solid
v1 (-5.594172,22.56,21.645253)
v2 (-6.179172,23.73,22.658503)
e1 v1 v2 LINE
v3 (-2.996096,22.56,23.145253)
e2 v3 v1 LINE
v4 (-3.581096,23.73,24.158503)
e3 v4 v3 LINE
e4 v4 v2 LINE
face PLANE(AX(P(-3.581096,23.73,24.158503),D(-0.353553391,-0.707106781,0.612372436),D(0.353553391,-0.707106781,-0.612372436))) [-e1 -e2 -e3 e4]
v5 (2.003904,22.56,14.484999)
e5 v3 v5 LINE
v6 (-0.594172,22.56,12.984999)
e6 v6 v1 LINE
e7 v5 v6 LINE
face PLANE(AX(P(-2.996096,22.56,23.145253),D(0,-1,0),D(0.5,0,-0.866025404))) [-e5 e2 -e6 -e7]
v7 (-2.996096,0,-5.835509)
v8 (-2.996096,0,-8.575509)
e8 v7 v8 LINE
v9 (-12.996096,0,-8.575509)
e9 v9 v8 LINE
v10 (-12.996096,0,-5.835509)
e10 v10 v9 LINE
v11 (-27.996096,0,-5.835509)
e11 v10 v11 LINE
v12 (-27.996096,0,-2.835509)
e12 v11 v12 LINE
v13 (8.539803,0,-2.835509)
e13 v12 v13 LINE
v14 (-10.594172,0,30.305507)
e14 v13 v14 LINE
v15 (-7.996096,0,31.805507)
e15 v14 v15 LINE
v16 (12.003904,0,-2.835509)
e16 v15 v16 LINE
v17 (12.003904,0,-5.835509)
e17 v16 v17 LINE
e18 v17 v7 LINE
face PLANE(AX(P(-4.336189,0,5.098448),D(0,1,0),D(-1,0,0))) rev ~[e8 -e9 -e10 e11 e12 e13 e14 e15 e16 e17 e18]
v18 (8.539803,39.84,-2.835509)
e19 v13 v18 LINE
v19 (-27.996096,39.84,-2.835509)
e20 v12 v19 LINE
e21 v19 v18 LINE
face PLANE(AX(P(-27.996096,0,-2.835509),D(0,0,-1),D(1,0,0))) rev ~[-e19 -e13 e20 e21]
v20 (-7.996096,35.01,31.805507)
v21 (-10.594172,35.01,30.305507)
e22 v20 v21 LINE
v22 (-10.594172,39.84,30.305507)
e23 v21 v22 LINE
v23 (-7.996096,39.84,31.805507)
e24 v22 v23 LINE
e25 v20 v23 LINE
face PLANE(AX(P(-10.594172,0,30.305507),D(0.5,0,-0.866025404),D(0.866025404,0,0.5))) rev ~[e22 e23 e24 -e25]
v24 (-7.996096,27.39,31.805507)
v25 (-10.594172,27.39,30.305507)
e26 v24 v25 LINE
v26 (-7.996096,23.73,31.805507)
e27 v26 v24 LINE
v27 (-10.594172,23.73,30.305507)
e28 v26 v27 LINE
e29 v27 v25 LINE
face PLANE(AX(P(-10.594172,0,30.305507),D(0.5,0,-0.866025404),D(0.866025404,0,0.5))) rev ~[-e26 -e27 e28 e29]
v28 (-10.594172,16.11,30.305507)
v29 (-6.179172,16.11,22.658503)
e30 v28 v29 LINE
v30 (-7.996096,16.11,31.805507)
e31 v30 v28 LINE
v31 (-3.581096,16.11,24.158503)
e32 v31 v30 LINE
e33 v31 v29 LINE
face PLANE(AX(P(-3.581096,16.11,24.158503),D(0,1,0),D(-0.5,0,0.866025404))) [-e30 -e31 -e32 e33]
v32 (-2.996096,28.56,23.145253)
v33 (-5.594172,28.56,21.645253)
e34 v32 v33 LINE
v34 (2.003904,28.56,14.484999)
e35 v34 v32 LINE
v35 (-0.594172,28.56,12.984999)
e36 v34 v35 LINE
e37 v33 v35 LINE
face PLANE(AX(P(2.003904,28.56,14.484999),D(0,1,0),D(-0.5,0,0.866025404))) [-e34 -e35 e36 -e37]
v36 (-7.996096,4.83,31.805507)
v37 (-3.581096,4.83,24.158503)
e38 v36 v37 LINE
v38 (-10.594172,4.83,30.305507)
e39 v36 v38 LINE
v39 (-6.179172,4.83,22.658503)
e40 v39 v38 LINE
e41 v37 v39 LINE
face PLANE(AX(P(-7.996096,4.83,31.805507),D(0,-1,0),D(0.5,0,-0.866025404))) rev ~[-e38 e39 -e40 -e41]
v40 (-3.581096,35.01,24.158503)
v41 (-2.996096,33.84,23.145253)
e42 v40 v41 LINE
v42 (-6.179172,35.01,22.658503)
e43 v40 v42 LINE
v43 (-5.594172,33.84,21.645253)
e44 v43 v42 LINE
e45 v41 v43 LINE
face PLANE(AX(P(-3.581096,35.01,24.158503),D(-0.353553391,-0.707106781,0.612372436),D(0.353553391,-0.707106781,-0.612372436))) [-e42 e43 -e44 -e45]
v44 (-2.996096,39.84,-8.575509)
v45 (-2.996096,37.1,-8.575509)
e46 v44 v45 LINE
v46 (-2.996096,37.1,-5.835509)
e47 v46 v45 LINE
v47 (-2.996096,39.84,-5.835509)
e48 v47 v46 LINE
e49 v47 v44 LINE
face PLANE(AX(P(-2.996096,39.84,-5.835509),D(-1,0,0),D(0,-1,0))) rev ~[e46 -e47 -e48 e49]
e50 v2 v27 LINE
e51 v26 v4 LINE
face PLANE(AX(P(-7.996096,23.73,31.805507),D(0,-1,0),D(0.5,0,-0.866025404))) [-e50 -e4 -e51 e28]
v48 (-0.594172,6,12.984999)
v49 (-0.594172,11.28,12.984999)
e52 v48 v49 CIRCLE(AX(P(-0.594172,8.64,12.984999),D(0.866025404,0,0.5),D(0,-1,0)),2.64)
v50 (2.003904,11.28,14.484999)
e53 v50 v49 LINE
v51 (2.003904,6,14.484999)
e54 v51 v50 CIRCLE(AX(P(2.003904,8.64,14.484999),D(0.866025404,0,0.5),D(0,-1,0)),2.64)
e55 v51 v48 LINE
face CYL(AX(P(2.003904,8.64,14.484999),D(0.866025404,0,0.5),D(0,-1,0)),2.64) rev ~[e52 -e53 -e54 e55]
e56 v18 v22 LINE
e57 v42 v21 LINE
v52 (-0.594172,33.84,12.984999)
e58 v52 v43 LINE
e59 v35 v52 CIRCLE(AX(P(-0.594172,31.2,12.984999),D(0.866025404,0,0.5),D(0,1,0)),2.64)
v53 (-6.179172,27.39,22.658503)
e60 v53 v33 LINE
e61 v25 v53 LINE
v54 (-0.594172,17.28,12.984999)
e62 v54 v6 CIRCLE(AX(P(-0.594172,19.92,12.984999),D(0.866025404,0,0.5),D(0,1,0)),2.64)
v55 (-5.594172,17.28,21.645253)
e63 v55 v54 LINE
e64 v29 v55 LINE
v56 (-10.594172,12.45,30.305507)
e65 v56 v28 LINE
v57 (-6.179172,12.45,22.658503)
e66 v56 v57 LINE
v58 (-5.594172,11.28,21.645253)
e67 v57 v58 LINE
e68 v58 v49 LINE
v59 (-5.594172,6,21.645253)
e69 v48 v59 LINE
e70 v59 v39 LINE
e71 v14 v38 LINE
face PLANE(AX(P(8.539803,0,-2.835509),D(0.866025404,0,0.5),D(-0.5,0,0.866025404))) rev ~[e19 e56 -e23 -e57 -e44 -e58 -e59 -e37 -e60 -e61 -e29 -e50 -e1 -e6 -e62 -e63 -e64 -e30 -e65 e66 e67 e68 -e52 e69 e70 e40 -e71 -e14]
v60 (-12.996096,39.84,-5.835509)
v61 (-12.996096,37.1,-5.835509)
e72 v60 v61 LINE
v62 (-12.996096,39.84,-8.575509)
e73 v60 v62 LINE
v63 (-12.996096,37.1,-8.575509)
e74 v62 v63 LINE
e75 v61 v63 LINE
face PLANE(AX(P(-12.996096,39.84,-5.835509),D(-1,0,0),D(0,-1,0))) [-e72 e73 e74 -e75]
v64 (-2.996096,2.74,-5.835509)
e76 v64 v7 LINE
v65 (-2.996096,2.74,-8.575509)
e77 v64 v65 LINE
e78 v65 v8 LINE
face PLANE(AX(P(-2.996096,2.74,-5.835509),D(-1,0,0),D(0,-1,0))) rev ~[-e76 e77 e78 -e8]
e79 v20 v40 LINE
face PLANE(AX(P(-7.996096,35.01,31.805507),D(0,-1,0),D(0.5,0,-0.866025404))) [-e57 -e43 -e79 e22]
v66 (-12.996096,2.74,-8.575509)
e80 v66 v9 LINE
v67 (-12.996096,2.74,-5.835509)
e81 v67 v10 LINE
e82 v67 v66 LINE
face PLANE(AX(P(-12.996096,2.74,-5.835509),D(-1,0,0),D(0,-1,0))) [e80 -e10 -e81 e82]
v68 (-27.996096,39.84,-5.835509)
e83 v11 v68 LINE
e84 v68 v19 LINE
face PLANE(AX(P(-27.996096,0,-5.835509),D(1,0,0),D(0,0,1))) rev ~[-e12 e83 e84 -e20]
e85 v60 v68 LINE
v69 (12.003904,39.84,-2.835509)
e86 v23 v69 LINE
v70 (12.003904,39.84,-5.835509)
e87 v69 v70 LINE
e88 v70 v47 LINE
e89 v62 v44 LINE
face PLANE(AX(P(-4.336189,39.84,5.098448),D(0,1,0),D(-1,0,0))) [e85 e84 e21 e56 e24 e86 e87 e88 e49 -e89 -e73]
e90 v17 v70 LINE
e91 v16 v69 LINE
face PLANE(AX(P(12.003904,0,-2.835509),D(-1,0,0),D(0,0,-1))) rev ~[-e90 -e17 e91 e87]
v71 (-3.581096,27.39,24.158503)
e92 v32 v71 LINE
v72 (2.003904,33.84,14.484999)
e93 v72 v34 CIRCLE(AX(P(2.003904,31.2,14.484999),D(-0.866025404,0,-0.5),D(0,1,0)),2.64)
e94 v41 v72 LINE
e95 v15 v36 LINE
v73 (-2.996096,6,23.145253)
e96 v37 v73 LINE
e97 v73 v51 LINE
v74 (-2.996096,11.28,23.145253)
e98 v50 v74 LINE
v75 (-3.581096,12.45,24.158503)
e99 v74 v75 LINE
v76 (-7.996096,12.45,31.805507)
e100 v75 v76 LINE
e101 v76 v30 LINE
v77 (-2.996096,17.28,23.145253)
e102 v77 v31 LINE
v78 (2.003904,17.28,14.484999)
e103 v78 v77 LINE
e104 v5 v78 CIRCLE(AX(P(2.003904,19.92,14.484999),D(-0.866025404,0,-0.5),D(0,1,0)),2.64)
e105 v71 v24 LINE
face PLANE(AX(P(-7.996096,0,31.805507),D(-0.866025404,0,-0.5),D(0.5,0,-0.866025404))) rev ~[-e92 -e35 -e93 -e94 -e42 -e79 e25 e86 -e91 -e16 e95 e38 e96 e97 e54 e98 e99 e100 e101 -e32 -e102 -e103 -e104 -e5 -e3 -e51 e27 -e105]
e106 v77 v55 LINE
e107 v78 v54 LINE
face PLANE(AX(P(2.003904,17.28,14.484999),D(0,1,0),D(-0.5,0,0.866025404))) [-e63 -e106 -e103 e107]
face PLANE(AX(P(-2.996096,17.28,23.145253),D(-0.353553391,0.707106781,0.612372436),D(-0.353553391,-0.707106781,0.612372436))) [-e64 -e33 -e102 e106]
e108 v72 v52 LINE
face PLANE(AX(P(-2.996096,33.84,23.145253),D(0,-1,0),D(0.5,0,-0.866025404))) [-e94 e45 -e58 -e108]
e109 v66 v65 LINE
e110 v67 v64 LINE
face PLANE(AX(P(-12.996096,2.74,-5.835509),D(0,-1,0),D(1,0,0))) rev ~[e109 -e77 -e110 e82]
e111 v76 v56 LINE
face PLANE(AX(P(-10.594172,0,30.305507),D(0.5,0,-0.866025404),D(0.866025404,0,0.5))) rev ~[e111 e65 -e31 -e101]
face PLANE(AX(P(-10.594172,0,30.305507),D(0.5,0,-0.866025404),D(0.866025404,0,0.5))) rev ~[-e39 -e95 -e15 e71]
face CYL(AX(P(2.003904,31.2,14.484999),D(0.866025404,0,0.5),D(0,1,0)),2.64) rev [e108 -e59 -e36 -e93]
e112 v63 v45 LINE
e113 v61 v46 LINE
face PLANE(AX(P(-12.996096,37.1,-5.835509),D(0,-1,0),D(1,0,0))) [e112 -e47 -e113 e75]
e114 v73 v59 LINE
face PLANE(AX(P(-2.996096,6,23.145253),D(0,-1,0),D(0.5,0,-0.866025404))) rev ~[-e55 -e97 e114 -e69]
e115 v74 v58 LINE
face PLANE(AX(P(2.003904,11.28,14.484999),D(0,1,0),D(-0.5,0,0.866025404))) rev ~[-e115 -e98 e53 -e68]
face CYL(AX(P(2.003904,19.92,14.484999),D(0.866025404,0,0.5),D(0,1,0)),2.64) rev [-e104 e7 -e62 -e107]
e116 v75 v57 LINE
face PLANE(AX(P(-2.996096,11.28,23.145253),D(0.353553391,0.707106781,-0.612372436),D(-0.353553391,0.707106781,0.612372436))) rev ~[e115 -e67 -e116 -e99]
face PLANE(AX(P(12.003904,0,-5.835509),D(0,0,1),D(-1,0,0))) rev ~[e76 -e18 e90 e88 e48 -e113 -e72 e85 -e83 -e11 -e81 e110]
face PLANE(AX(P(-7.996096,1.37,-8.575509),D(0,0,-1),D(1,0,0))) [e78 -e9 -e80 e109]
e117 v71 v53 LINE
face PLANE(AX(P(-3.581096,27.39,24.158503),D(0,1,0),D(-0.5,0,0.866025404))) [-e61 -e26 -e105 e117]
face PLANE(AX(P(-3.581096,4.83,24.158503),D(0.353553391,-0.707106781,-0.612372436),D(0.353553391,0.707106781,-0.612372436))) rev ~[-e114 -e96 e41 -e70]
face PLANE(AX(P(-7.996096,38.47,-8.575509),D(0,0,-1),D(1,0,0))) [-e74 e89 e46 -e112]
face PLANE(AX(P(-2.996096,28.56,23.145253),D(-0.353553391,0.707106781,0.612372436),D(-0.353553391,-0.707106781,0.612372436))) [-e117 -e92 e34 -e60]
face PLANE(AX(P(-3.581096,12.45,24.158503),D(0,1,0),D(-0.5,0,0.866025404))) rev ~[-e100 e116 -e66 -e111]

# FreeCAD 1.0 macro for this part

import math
import FreeCAD as App
import Part
import Sketcher
Q = App.Units.Quantity


def add_polygon(sketch, points):
    """Adds a closed chain of lines whose ends are joined by coincident constraints."""
    first, n = sketch.GeometryCount, len(points)
    for a, b in zip(points, points[1:] + points[:1]):
        sketch.addGeometry(Part.LineSegment(App.Vector(*a, 0), App.Vector(*b, 0)), False)
    for i in range(n):
        sketch.addConstraint(Sketcher.Constraint("Coincident", first + i, 2, first + (i + 1) % n, 1))

doc = App.newDocument("Part")
params = doc.addObject("Spreadsheet::Sheet", "Params")
for row, (alias, value) in enumerate([
    ("sketch1_width", "40 mm"),
    ("sketch1_height", "3 mm"),
    ("sketch1_length", "3 mm"),
    ("sketch1_length2", "40 mm"),
    ("pad1_length", "39.84 mm"),
    ("sketch2_height", "10 mm"),
    ("sketch2_radius", "2.64 mm"),
    ("sketch2_width", "7.62 mm"),
    ("sketch3_height", "10 mm"),
    ("sketch3_radius", "2.64 mm"),
    ("sketch3_width", "7.62 mm"),
    ("sketch4_height", "10 mm"),
    ("sketch4_radius", "2.64 mm"),
    ("sketch4_width", "7.62 mm"),
    ("sketch5_width", "10 mm"),
    ("sketch5_height", "2.74 mm"),
    ("pad2_length", "2.74 mm"),
], start=1):
    params.set(f"A{row}", alias)
    params.set(f"B{row}", "=" + value)
    params.setAlias(f"B{row}", alias)

body = doc.addObject("PartDesign::Body", "Body")

sketch1 = doc.addObject("Sketcher::SketchObject", "Sketch")
body.addObject(sketch1)
sketch1.AttachmentSupport = (doc.XZ_Plane, [""])
sketch1.MapMode = "FlatFace"
add_polygon(sketch1, [(12.003904, -2.835509), (12.003904, -5.835509), (-27.996096, -5.835509), (-27.996096, -2.835509), (8.539803, -2.835509), (-10.594172, 30.305507), (-7.996096, 31.805507)])
sketch1.addConstraint([
    Sketcher.Constraint("Vertical", 0),
    Sketcher.Constraint("Horizontal", 1),
    Sketcher.Constraint("Vertical", 2),
    Sketcher.Constraint("Horizontal", 3),
    Sketcher.Constraint("Perpendicular", 4, 5),
    Sketcher.Constraint("Perpendicular", 5, 6),
    Sketcher.Constraint("Horizontal", 3, 2, 6, 2),
    Sketcher.Constraint("DistanceX", 1, 2, 1, 1, 40.0),
    Sketcher.Constraint("DistanceY", 0, 2, 0, 1, 3.0),
    Sketcher.Constraint("Angle", 4, Q("120 deg")),
    Sketcher.Constraint("Distance", 5, 3.0),
    Sketcher.Constraint("Distance", 6, 40.0),
    Sketcher.Constraint("DistanceY", 0, 2, -1, 1, 5.835509),
    Sketcher.Constraint("DistanceX", 4, 2, -1, 1, 10.594172),
])
sketch1.setExpression("Constraints[14]", "Params.sketch1_width")
sketch1.setExpression("Constraints[15]", "Params.sketch1_height")
sketch1.setExpression("Constraints[17]", "Params.sketch1_length")
sketch1.setExpression("Constraints[18]", "Params.sketch1_length2")
pad1 = doc.addObject("PartDesign::Pad", "Pad")
body.addObject(pad1)
pad1.Profile = sketch1
pad1.setExpression("Length", "Params.pad1_length")
pad1.Reversed = True

sketch2 = doc.addObject("Sketcher::SketchObject", "Sketch001")
body.addObject(sketch2)
sketch2.Placement = App.Placement(App.Vector(7.775117, 0, 4.488966), App.Rotation(App.Vector(0, 1, 0), App.Vector(-0.5, 0, 0.866025404), App.Vector(0.866025404, 0, 0.5), "ZXY"))
sketch2.addGeometry([
    Part.LineSegment(App.Vector(6, 21.542425, 0), App.Vector(6, 11.542425, 0)),
    Part.ArcOfCircle(Part.Circle(App.Vector(8.64, 11.542425, 0), App.Vector(0, 0, 1), 2.64), math.radians(180), math.radians(360)),
    Part.LineSegment(App.Vector(11.28, 11.542425, 0), App.Vector(11.28, 21.542425, 0)),
    Part.LineSegment(App.Vector(11.28, 21.542425, 0), App.Vector(12.45, 22.712425, 0)),
    Part.LineSegment(App.Vector(12.45, 22.712425, 0), App.Vector(12.45, 31.542425, 0)),
    Part.LineSegment(App.Vector(12.45, 31.542425, 0), App.Vector(4.83, 31.542425, 0)),
    Part.LineSegment(App.Vector(4.83, 31.542425, 0), App.Vector(4.83, 22.712425, 0)),
    Part.LineSegment(App.Vector(4.83, 22.712425, 0), App.Vector(6, 21.542425, 0)),
], False)
sketch2.addConstraint([
    Sketcher.Constraint("Tangent", 0, 2, 1, 1),
    Sketcher.Constraint("Tangent", 1, 2, 2, 1),
    Sketcher.Constraint("Coincident", 2, 2, 3, 1),
    Sketcher.Constraint("Coincident", 3, 2, 4, 1),
    Sketcher.Constraint("Coincident", 4, 2, 5, 1),
    Sketcher.Constraint("Coincident", 5, 2, 6, 1),
    Sketcher.Constraint("Coincident", 6, 2, 7, 1),
    Sketcher.Constraint("Coincident", 7, 2, 0, 1),
    Sketcher.Constraint("Vertical", 0),
    Sketcher.Constraint("Vertical", 2),
    Sketcher.Constraint("Vertical", 4),
    Sketcher.Constraint("Horizontal", 5),
    Sketcher.Constraint("Vertical", 6),
    Sketcher.Constraint("Perpendicular", 3, 7),
    Sketcher.Constraint("Horizontal", 3, 2, 6, 2),
    Sketcher.Constraint("Horizontal", 2, 2, 7, 2),
    Sketcher.Constraint("Equal", 3, 7),
    Sketcher.Constraint("DistanceY", 0, 2, 0, 1, 10.0),
    Sketcher.Constraint("Radius", 1, 2.64),
    Sketcher.Constraint("DistanceX", -1, 1, 0, 2, 6.0),
    Sketcher.Constraint("DistanceY", 2, 2, 4, 2, 10.0),
    Sketcher.Constraint("DistanceX", 5, 2, 5, 1, 7.62),
    Sketcher.Constraint("DistanceY", -1, 1, 1, 3, 11.542425),
])
sketch2.setExpression("Constraints[17]", "Params.sketch2_height")
sketch2.setExpression("Constraints[18]", "Params.sketch2_radius")
sketch2.setExpression("Constraints[21]", "Params.sketch2_width")
pocket1 = doc.addObject("PartDesign::Pocket", "Pocket")
body.addObject(pocket1)
pocket1.Profile = sketch2
pocket1.Type = "UpToFirst"

sketch3 = doc.addObject("Sketcher::SketchObject", "Sketch002")
body.addObject(sketch3)
sketch3.Placement = App.Placement(App.Vector(7.775117, 0, 4.488966), App.Rotation(App.Vector(0, 1, 0), App.Vector(-0.5, 0, 0.866025404), App.Vector(0.866025404, 0, 0.5), "ZXY"))
sketch3.addGeometry([
    Part.LineSegment(App.Vector(22.56, 11.542425, 0), App.Vector(22.56, 21.542425, 0)),
    Part.LineSegment(App.Vector(22.56, 21.542425, 0), App.Vector(23.73, 22.712425, 0)),
    Part.LineSegment(App.Vector(23.73, 22.712425, 0), App.Vector(23.73, 31.542425, 0)),
    Part.LineSegment(App.Vector(23.73, 31.542425, 0), App.Vector(16.11, 31.542425, 0)),
    Part.LineSegment(App.Vector(16.11, 31.542425, 0), App.Vector(16.11, 22.712425, 0)),
    Part.LineSegment(App.Vector(16.11, 22.712425, 0), App.Vector(17.28, 21.542425, 0)),
    Part.LineSegment(App.Vector(17.28, 21.542425, 0), App.Vector(17.28, 11.542425, 0)),
    Part.ArcOfCircle(Part.Circle(App.Vector(19.92, 11.542425, 0), App.Vector(0, 0, 1), 2.64), math.radians(180), math.radians(360)),
], False)
sketch3.addConstraint([
    Sketcher.Constraint("Coincident", 0, 2, 1, 1),
    Sketcher.Constraint("Coincident", 1, 2, 2, 1),
    Sketcher.Constraint("Coincident", 2, 2, 3, 1),
    Sketcher.Constraint("Coincident", 3, 2, 4, 1),
    Sketcher.Constraint("Coincident", 4, 2, 5, 1),
    Sketcher.Constraint("Coincident", 5, 2, 6, 1),
    Sketcher.Constraint("Tangent", 6, 2, 7, 1),
    Sketcher.Constraint("Tangent", 7, 2, 0, 1),
    Sketcher.Constraint("Vertical", 0),
    Sketcher.Constraint("Vertical", 2),
    Sketcher.Constraint("Horizontal", 3),
    Sketcher.Constraint("Vertical", 4),
    Sketcher.Constraint("Vertical", 6),
    Sketcher.Constraint("Perpendicular", 1, 5),
    Sketcher.Constraint("Horizontal", 1, 2, 4, 2),
    Sketcher.Constraint("Horizontal", 0, 2, 5, 2),
    Sketcher.Constraint("Equal", 1, 5),
    Sketcher.Constraint("DistanceY", 0, 1, 0, 2, 10.0),
    Sketcher.Constraint("Radius", 7, 2.64),
    Sketcher.Constraint("DistanceY", 0, 2, 2, 2, 10.0),
    Sketcher.Constraint("DistanceX", 3, 2, 3, 1, 7.62),
    Sketcher.Constraint("DistanceX", -1, 1, 7, 3, 19.92),
    Sketcher.Constraint("DistanceY", -1, 1, 7, 3, 11.542425),
])
sketch3.setExpression("Constraints[17]", "Params.sketch3_height")
sketch3.setExpression("Constraints[18]", "Params.sketch3_radius")
sketch3.setExpression("Constraints[20]", "Params.sketch3_width")
pocket2 = doc.addObject("PartDesign::Pocket", "Pocket001")
body.addObject(pocket2)
pocket2.Profile = sketch3
pocket2.Type = "UpToFirst"

sketch4 = doc.addObject("Sketcher::SketchObject", "Sketch003")
body.addObject(sketch4)
sketch4.Placement = App.Placement(App.Vector(7.775117, 0, 4.488966), App.Rotation(App.Vector(0, 1, 0), App.Vector(-0.5, 0, 0.866025404), App.Vector(0.866025404, 0, 0.5), "ZXY"))
sketch4.addGeometry([
    Part.LineSegment(App.Vector(33.84, 11.542425, 0), App.Vector(33.84, 21.542425, 0)),
    Part.LineSegment(App.Vector(33.84, 21.542425, 0), App.Vector(35.01, 22.712425, 0)),
    Part.LineSegment(App.Vector(35.01, 22.712425, 0), App.Vector(35.01, 31.542425, 0)),
    Part.LineSegment(App.Vector(35.01, 31.542425, 0), App.Vector(27.39, 31.542425, 0)),
    Part.LineSegment(App.Vector(27.39, 31.542425, 0), App.Vector(27.39, 22.712425, 0)),
    Part.LineSegment(App.Vector(27.39, 22.712425, 0), App.Vector(28.56, 21.542425, 0)),
    Part.LineSegment(App.Vector(28.56, 21.542425, 0), App.Vector(28.56, 11.542425, 0)),
    Part.ArcOfCircle(Part.Circle(App.Vector(31.2, 11.542425, 0), App.Vector(0, 0, 1), 2.64), math.radians(180), math.radians(360)),
], False)
sketch4.addConstraint([
    Sketcher.Constraint("Coincident", 0, 2, 1, 1),
    Sketcher.Constraint("Coincident", 1, 2, 2, 1),
    Sketcher.Constraint("Coincident", 2, 2, 3, 1),
    Sketcher.Constraint("Coincident", 3, 2, 4, 1),
    Sketcher.Constraint("Coincident", 4, 2, 5, 1),
    Sketcher.Constraint("Coincident", 5, 2, 6, 1),
    Sketcher.Constraint("Tangent", 6, 2, 7, 1),
    Sketcher.Constraint("Tangent", 7, 2, 0, 1),
    Sketcher.Constraint("Vertical", 0),
    Sketcher.Constraint("Vertical", 2),
    Sketcher.Constraint("Horizontal", 3),
    Sketcher.Constraint("Vertical", 4),
    Sketcher.Constraint("Vertical", 6),
    Sketcher.Constraint("Perpendicular", 1, 5),
    Sketcher.Constraint("Horizontal", 1, 2, 4, 2),
    Sketcher.Constraint("Horizontal", 0, 2, 5, 2),
    Sketcher.Constraint("Equal", 1, 5),
    Sketcher.Constraint("DistanceY", 0, 1, 0, 2, 10.0),
    Sketcher.Constraint("Radius", 7, 2.64),
    Sketcher.Constraint("DistanceY", 0, 2, 2, 2, 10.0),
    Sketcher.Constraint("DistanceX", 3, 2, 3, 1, 7.62),
    Sketcher.Constraint("DistanceX", -1, 1, 7, 3, 31.2),
    Sketcher.Constraint("DistanceY", -1, 1, 7, 3, 11.542425),
])
sketch4.setExpression("Constraints[17]", "Params.sketch4_height")
sketch4.setExpression("Constraints[18]", "Params.sketch4_radius")
sketch4.setExpression("Constraints[20]", "Params.sketch4_width")
pocket3 = doc.addObject("PartDesign::Pocket", "Pocket002")
body.addObject(pocket3)
pocket3.Profile = sketch4
pocket3.Type = "UpToFirst"

sketch5 = doc.addObject("Sketcher::SketchObject", "Sketch004")
body.addObject(sketch5)
sketch5.AttachmentSupport = (doc.XY_Plane, [""])
sketch5.MapMode = "FlatFace"
sketch5.AttachmentOffset = App.Placement(App.Vector(0, 0, -5.835509), App.Rotation())
add_polygon(sketch5, [(-12.996096, 0), (-12.996096, 2.74), (-2.996096, 2.74), (-2.996096, 0)])
add_polygon(sketch5, [(-12.996096, 37.1), (-12.996096, 39.84), (-2.996096, 39.84), (-2.996096, 37.1)])
sketch5.addConstraint([
    Sketcher.Constraint("Vertical", 0),
    Sketcher.Constraint("Horizontal", 1),
    Sketcher.Constraint("Vertical", 2),
    Sketcher.Constraint("Horizontal", 3),
    Sketcher.Constraint("Vertical", 4),
    Sketcher.Constraint("Horizontal", 5),
    Sketcher.Constraint("Vertical", 6),
    Sketcher.Constraint("Horizontal", 7),
    Sketcher.Constraint("PointOnObject", 2, 2, -1),
    Sketcher.Constraint("Vertical", 3, 2, 4, 2),
    Sketcher.Constraint("Vertical", 2, 2, 5, 2),
    Sketcher.Constraint("Equal", 2, 4),
    Sketcher.Constraint("DistanceX", 1, 1, 1, 2, 10.0),
    Sketcher.Constraint("DistanceY", 0, 1, 0, 2, 2.74),
    Sketcher.Constraint("DistanceY", -1, 1, 6, 2, 37.1),
    Sketcher.Constraint("DistanceX", 0, 2, -1, 1, 12.996096),
])
sketch5.setExpression("Constraints[20]", "Params.sketch5_width")
sketch5.setExpression("Constraints[21]", "Params.sketch5_height")
pad2 = doc.addObject("PartDesign::Pad", "Pad001")
body.addObject(pad2)
pad2.Profile = sketch5
pad2.setExpression("Length", "Params.pad2_length")
pad2.Reversed = True

doc.recompute()
